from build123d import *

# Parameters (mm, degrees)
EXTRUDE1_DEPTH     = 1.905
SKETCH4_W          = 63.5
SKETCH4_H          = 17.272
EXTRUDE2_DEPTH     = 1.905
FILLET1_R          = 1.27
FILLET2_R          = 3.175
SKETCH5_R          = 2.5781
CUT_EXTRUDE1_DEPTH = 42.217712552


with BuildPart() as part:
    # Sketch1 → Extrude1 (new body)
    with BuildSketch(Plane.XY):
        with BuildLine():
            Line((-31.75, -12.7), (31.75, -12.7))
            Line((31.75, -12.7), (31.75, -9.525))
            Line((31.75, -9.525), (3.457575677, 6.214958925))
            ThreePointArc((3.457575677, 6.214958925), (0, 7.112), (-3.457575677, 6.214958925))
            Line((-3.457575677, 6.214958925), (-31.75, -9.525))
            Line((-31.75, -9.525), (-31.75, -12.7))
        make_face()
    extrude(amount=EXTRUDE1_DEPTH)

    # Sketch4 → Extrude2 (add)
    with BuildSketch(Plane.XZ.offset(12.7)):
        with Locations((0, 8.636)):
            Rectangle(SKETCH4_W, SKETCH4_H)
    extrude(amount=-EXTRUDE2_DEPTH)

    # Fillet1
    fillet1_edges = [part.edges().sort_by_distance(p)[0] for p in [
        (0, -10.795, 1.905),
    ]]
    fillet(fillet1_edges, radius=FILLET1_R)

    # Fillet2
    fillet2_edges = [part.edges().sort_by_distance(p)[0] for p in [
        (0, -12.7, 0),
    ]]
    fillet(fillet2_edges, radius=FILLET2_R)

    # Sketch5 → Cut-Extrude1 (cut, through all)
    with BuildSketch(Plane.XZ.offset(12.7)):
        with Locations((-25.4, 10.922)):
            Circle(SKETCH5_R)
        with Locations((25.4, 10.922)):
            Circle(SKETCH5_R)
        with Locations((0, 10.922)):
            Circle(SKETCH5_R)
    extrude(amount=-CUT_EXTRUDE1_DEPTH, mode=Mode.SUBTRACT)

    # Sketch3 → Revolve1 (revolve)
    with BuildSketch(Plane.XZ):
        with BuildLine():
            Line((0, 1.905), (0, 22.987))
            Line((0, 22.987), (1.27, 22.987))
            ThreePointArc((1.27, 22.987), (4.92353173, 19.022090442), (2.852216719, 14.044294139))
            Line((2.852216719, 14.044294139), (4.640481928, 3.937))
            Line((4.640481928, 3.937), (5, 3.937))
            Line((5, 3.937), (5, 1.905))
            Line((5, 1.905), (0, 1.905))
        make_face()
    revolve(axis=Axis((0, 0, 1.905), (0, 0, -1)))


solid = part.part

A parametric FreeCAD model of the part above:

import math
import FreeCAD as App
import Part
import Sketcher
from FreeCAD import Vector
Q = App.Units.Quantity


def edges_at(feature, points):
    """Names of the edges that pass closest to the given points."""
    edges = feature.Shape.Edges
    near = lambda p: min(range(len(edges)), key=lambda i: edges[i].distToShape(Part.Vertex(*p))[0])
    return sorted({f"Edge{near(p) + 1}" for p in points})

doc = App.newDocument("Part")
body = doc.addObject("PartDesign::Body", "Body")

sketch1 = body.newObject("Sketcher::SketchObject", "Sketch")
sketch1.AttachmentSupport = (doc.getObject("XY_Plane"), [""])
sketch1.MapMode = "FlatFace"
sketch1.addGeometry([
    Part.LineSegment(Vector(-31.8, -12.7, 0), Vector(31.8, -12.7, 0)),
    Part.LineSegment(Vector(31.8, -12.7, 0), Vector(31.8, -9.5, 0)),
    Part.LineSegment(Vector(31.8, -9.5, 0), Vector(3.5, 6.2, 0)),
    Part.ArcOfCircle(Part.Circle(Vector(0, 0, 0), Vector(0, 0, 1), 7.1), math.radians(61), math.radians(119)),
    Part.LineSegment(Vector(-3.5, 6.2, 0), Vector(-31.8, -9.5, 0)),
    Part.LineSegment(Vector(-31.8, -9.5, 0), Vector(-31.8, -12.7, 0)),
], False)
sketch1.addConstraint([
    Sketcher.Constraint("Coincident", 0, 2, 1, 1),
    Sketcher.Constraint("Coincident", 1, 2, 2, 1),
    Sketcher.Constraint("Tangent", 2, 2, 3, 1),
    Sketcher.Constraint("Tangent", 3, 2, 4, 1),
    Sketcher.Constraint("Coincident", 4, 2, 5, 1),
    Sketcher.Constraint("Coincident", 5, 2, 0, 1),
    Sketcher.Constraint("Horizontal", 0),
    Sketcher.Constraint("Vertical", 1),
    Sketcher.Constraint("Vertical", 5),
    Sketcher.Constraint("Coincident", 3, 3, -1, 1),
    Sketcher.Constraint("Symmetric", 1, 2, 4, 2, -2),
    Sketcher.Constraint("Radius", 3, Q("0.28 in")),
    Sketcher.Constraint("DistanceX", 0, 1, 0, 2, Q("2.5 in")),
    Sketcher.Constraint("DistanceY", 0, 2, -1, 1, Q("0.5 in")),
    Sketcher.Constraint("DistanceY", 1, 1, 1, 2, Q("0.125 in")),
])
pad1 = body.newObject("PartDesign::Pad", "Pad")
pad1.Profile = sketch1
pad1.Length = Q("0.075 in")

sketch2 = body.newObject("Sketcher::SketchObject", "Sketch001")
sketch2.AttachmentSupport = (doc.getObject("XZ_Plane"), [""])
sketch2.MapMode = "FlatFace"
sketch2.AttachmentOffset = App.Placement(Vector(0, 0, 0.5 * 25.4), App.Rotation())
sketch2.addGeometry([
    Part.LineSegment(Vector(-32, 17, 0), Vector(-32, 0, 0)),
    Part.LineSegment(Vector(-32, 0, 0), Vector(32, 0, 0)),
    Part.LineSegment(Vector(32, 0, 0), Vector(32, 17, 0)),
    Part.LineSegment(Vector(32, 17, 0), Vector(-32, 17, 0)),
], False)
sketch2.addConstraint([
    Sketcher.Constraint("Coincident", 0, 2, 1, 1),
    Sketcher.Constraint("Coincident", 1, 2, 2, 1),
    Sketcher.Constraint("Coincident", 2, 2, 3, 1),
    Sketcher.Constraint("Coincident", 3, 2, 0, 1),
    Sketcher.Constraint("Vertical", 0),
    Sketcher.Constraint("Horizontal", 1),
    Sketcher.Constraint("Vertical", 2),
    Sketcher.Constraint("Horizontal", 3),
    Sketcher.Constraint("Symmetric", 0, 2, 1, 2, -1, 1),
    Sketcher.Constraint("DistanceX", 1, 1, 1, 2, Q("2.5 in")),
    Sketcher.Constraint("DistanceY", 0, 2, 0, 1, Q("0.68 in")),
])
pad2 = body.newObject("PartDesign::Pad", "Pad001")
pad2.Profile = sketch2
pad2.Length = Q("0.075 in")
pad2.Reversed = True
doc.recompute()

fillet = body.newObject("PartDesign::Fillet", "Fillet")
fillet.Base = (pad2, edges_at(pad2, [(0, -10.795, 1.905)]))
fillet.Radius = Q("0.05 in")
doc.recompute()

fillet2 = body.newObject("PartDesign::Fillet", "Fillet001")
fillet2.Base = (fillet, edges_at(fillet, [(0, -12.7, 0)]))
fillet2.Radius = Q("0.125 in")

sketch3 = body.newObject("Sketcher::SketchObject", "Sketch002")
sketch3.AttachmentSupport = (doc.getObject("XZ_Plane"), [""])
sketch3.MapMode = "FlatFace"
sketch3.AttachmentOffset = App.Placement(Vector(0, 0, 0.5 * 25.4), App.Rotation())
sketch3.addGeometry([
    Part.Circle(Vector(-25.4, 10.9, 0), Vector(0, 0, 1), 2.6),
    Part.Circle(Vector(25.4, 10.9, 0), Vector(0, 0, 1), 2.6),
    Part.Circle(Vector(0, 10.9, 0), Vector(0, 0, 1), 2.6),
], False)
sketch3.addConstraint([
    Sketcher.Constraint("Equal", 0, 1),
    Sketcher.Constraint("Equal", 1, 2),
    Sketcher.Constraint("Symmetric", 0, 3, 1, 3, -2),
    Sketcher.Constraint("PointOnObject", 2, 3, -2),
    Sketcher.Constraint("Horizontal", 1, 3, 2, 3),
    Sketcher.Constraint("Diameter", 0, Q("0.203 in")),
    Sketcher.Constraint("DistanceX", 0, 3, -1, 1, Q("1 in")),
    Sketcher.Constraint("DistanceY", -1, 1, 0, 3, Q("0.43 in")),
])
pocket1 = body.newObject("PartDesign::Pocket", "Pocket")
pocket1.Profile = sketch3
pocket1.Type = "ThroughAll"

sketch4 = body.newObject("Sketcher::SketchObject", "Sketch003")
sketch4.AttachmentSupport = (doc.getObject("XZ_Plane"), [""])
sketch4.MapMode = "FlatFace"
sketch4.addGeometry([
    Part.LineSegment(Vector(0, 22.99, 0), Vector(0, 1.91, 0)),
    Part.LineSegment(Vector(0, 1.91, 0), Vector(5, 1.91, 0)),
    Part.LineSegment(Vector(5, 1.91, 0), Vector(5, 3.94, 0)),
    Part.LineSegment(Vector(5, 3.94, 0), Vector(4.64, 3.94, 0)),
    Part.LineSegment(Vector(4.64, 3.94, 0), Vector(2.85, 14.04, 0)),
    Part.ArcOfCircle(Part.Circle(Vector(0, 18.15, 0), Vector(0, 0, 1), 5), math.radians(-55), math.radians(75)),
    Part.LineSegment(Vector(1.27, 22.99, 0), Vector(0, 22.99, 0)),
], False)
sketch4.addConstraint([
    Sketcher.Constraint("Coincident", 0, 2, 1, 1),
    Sketcher.Constraint("Coincident", 1, 2, 2, 1),
    Sketcher.Constraint("Coincident", 2, 2, 3, 1),
    Sketcher.Constraint("Coincident", 3, 2, 4, 1),
    Sketcher.Constraint("Coincident", 4, 2, 5, 1),
    Sketcher.Constraint("Coincident", 5, 2, 6, 1),
    Sketcher.Constraint("Coincident", 6, 2, 0, 1),
    Sketcher.Constraint("Vertical", 0),
    Sketcher.Constraint("Horizontal", 1),
    Sketcher.Constraint("Vertical", 2),
    Sketcher.Constraint("Horizontal", 3),
    Sketcher.Constraint("Horizontal", 6),
    Sketcher.Constraint("PointOnObject", 5, 3, -2),
    Sketcher.Constraint("PointOnObject", 0, 2, -2),
    Sketcher.Constraint("DistanceX", 6, 2, 6, 1, Q("0.05 in")),
    Sketcher.Constraint("DistanceY", 0, 2, 0, 1, Q("0.83 in")),
    Sketcher.Constraint("DistanceY", 2, 1, 2, 2, Q("0.08 in")),
    Sketcher.Constraint("Radius", 5, 5.0),
    Sketcher.Constraint("DistanceY", -1, 1, 0, 2, Q("0.075 in")),
    Sketcher.Constraint("DistanceX", 1, 1, 1, 2, 5.0),
    Sketcher.Constraint("DistanceX", 3, 2, 3, 1, 0.359518),
    Sketcher.Constraint("Distance", 4, 10.264272),
])
revolution = body.newObject("PartDesign::Revolution", "Revolution")
revolution.Profile = sketch4
revolution.ReferenceAxis = (sketch4, ["V_Axis"])
revolution.Angle = 360

doc.recompute()
